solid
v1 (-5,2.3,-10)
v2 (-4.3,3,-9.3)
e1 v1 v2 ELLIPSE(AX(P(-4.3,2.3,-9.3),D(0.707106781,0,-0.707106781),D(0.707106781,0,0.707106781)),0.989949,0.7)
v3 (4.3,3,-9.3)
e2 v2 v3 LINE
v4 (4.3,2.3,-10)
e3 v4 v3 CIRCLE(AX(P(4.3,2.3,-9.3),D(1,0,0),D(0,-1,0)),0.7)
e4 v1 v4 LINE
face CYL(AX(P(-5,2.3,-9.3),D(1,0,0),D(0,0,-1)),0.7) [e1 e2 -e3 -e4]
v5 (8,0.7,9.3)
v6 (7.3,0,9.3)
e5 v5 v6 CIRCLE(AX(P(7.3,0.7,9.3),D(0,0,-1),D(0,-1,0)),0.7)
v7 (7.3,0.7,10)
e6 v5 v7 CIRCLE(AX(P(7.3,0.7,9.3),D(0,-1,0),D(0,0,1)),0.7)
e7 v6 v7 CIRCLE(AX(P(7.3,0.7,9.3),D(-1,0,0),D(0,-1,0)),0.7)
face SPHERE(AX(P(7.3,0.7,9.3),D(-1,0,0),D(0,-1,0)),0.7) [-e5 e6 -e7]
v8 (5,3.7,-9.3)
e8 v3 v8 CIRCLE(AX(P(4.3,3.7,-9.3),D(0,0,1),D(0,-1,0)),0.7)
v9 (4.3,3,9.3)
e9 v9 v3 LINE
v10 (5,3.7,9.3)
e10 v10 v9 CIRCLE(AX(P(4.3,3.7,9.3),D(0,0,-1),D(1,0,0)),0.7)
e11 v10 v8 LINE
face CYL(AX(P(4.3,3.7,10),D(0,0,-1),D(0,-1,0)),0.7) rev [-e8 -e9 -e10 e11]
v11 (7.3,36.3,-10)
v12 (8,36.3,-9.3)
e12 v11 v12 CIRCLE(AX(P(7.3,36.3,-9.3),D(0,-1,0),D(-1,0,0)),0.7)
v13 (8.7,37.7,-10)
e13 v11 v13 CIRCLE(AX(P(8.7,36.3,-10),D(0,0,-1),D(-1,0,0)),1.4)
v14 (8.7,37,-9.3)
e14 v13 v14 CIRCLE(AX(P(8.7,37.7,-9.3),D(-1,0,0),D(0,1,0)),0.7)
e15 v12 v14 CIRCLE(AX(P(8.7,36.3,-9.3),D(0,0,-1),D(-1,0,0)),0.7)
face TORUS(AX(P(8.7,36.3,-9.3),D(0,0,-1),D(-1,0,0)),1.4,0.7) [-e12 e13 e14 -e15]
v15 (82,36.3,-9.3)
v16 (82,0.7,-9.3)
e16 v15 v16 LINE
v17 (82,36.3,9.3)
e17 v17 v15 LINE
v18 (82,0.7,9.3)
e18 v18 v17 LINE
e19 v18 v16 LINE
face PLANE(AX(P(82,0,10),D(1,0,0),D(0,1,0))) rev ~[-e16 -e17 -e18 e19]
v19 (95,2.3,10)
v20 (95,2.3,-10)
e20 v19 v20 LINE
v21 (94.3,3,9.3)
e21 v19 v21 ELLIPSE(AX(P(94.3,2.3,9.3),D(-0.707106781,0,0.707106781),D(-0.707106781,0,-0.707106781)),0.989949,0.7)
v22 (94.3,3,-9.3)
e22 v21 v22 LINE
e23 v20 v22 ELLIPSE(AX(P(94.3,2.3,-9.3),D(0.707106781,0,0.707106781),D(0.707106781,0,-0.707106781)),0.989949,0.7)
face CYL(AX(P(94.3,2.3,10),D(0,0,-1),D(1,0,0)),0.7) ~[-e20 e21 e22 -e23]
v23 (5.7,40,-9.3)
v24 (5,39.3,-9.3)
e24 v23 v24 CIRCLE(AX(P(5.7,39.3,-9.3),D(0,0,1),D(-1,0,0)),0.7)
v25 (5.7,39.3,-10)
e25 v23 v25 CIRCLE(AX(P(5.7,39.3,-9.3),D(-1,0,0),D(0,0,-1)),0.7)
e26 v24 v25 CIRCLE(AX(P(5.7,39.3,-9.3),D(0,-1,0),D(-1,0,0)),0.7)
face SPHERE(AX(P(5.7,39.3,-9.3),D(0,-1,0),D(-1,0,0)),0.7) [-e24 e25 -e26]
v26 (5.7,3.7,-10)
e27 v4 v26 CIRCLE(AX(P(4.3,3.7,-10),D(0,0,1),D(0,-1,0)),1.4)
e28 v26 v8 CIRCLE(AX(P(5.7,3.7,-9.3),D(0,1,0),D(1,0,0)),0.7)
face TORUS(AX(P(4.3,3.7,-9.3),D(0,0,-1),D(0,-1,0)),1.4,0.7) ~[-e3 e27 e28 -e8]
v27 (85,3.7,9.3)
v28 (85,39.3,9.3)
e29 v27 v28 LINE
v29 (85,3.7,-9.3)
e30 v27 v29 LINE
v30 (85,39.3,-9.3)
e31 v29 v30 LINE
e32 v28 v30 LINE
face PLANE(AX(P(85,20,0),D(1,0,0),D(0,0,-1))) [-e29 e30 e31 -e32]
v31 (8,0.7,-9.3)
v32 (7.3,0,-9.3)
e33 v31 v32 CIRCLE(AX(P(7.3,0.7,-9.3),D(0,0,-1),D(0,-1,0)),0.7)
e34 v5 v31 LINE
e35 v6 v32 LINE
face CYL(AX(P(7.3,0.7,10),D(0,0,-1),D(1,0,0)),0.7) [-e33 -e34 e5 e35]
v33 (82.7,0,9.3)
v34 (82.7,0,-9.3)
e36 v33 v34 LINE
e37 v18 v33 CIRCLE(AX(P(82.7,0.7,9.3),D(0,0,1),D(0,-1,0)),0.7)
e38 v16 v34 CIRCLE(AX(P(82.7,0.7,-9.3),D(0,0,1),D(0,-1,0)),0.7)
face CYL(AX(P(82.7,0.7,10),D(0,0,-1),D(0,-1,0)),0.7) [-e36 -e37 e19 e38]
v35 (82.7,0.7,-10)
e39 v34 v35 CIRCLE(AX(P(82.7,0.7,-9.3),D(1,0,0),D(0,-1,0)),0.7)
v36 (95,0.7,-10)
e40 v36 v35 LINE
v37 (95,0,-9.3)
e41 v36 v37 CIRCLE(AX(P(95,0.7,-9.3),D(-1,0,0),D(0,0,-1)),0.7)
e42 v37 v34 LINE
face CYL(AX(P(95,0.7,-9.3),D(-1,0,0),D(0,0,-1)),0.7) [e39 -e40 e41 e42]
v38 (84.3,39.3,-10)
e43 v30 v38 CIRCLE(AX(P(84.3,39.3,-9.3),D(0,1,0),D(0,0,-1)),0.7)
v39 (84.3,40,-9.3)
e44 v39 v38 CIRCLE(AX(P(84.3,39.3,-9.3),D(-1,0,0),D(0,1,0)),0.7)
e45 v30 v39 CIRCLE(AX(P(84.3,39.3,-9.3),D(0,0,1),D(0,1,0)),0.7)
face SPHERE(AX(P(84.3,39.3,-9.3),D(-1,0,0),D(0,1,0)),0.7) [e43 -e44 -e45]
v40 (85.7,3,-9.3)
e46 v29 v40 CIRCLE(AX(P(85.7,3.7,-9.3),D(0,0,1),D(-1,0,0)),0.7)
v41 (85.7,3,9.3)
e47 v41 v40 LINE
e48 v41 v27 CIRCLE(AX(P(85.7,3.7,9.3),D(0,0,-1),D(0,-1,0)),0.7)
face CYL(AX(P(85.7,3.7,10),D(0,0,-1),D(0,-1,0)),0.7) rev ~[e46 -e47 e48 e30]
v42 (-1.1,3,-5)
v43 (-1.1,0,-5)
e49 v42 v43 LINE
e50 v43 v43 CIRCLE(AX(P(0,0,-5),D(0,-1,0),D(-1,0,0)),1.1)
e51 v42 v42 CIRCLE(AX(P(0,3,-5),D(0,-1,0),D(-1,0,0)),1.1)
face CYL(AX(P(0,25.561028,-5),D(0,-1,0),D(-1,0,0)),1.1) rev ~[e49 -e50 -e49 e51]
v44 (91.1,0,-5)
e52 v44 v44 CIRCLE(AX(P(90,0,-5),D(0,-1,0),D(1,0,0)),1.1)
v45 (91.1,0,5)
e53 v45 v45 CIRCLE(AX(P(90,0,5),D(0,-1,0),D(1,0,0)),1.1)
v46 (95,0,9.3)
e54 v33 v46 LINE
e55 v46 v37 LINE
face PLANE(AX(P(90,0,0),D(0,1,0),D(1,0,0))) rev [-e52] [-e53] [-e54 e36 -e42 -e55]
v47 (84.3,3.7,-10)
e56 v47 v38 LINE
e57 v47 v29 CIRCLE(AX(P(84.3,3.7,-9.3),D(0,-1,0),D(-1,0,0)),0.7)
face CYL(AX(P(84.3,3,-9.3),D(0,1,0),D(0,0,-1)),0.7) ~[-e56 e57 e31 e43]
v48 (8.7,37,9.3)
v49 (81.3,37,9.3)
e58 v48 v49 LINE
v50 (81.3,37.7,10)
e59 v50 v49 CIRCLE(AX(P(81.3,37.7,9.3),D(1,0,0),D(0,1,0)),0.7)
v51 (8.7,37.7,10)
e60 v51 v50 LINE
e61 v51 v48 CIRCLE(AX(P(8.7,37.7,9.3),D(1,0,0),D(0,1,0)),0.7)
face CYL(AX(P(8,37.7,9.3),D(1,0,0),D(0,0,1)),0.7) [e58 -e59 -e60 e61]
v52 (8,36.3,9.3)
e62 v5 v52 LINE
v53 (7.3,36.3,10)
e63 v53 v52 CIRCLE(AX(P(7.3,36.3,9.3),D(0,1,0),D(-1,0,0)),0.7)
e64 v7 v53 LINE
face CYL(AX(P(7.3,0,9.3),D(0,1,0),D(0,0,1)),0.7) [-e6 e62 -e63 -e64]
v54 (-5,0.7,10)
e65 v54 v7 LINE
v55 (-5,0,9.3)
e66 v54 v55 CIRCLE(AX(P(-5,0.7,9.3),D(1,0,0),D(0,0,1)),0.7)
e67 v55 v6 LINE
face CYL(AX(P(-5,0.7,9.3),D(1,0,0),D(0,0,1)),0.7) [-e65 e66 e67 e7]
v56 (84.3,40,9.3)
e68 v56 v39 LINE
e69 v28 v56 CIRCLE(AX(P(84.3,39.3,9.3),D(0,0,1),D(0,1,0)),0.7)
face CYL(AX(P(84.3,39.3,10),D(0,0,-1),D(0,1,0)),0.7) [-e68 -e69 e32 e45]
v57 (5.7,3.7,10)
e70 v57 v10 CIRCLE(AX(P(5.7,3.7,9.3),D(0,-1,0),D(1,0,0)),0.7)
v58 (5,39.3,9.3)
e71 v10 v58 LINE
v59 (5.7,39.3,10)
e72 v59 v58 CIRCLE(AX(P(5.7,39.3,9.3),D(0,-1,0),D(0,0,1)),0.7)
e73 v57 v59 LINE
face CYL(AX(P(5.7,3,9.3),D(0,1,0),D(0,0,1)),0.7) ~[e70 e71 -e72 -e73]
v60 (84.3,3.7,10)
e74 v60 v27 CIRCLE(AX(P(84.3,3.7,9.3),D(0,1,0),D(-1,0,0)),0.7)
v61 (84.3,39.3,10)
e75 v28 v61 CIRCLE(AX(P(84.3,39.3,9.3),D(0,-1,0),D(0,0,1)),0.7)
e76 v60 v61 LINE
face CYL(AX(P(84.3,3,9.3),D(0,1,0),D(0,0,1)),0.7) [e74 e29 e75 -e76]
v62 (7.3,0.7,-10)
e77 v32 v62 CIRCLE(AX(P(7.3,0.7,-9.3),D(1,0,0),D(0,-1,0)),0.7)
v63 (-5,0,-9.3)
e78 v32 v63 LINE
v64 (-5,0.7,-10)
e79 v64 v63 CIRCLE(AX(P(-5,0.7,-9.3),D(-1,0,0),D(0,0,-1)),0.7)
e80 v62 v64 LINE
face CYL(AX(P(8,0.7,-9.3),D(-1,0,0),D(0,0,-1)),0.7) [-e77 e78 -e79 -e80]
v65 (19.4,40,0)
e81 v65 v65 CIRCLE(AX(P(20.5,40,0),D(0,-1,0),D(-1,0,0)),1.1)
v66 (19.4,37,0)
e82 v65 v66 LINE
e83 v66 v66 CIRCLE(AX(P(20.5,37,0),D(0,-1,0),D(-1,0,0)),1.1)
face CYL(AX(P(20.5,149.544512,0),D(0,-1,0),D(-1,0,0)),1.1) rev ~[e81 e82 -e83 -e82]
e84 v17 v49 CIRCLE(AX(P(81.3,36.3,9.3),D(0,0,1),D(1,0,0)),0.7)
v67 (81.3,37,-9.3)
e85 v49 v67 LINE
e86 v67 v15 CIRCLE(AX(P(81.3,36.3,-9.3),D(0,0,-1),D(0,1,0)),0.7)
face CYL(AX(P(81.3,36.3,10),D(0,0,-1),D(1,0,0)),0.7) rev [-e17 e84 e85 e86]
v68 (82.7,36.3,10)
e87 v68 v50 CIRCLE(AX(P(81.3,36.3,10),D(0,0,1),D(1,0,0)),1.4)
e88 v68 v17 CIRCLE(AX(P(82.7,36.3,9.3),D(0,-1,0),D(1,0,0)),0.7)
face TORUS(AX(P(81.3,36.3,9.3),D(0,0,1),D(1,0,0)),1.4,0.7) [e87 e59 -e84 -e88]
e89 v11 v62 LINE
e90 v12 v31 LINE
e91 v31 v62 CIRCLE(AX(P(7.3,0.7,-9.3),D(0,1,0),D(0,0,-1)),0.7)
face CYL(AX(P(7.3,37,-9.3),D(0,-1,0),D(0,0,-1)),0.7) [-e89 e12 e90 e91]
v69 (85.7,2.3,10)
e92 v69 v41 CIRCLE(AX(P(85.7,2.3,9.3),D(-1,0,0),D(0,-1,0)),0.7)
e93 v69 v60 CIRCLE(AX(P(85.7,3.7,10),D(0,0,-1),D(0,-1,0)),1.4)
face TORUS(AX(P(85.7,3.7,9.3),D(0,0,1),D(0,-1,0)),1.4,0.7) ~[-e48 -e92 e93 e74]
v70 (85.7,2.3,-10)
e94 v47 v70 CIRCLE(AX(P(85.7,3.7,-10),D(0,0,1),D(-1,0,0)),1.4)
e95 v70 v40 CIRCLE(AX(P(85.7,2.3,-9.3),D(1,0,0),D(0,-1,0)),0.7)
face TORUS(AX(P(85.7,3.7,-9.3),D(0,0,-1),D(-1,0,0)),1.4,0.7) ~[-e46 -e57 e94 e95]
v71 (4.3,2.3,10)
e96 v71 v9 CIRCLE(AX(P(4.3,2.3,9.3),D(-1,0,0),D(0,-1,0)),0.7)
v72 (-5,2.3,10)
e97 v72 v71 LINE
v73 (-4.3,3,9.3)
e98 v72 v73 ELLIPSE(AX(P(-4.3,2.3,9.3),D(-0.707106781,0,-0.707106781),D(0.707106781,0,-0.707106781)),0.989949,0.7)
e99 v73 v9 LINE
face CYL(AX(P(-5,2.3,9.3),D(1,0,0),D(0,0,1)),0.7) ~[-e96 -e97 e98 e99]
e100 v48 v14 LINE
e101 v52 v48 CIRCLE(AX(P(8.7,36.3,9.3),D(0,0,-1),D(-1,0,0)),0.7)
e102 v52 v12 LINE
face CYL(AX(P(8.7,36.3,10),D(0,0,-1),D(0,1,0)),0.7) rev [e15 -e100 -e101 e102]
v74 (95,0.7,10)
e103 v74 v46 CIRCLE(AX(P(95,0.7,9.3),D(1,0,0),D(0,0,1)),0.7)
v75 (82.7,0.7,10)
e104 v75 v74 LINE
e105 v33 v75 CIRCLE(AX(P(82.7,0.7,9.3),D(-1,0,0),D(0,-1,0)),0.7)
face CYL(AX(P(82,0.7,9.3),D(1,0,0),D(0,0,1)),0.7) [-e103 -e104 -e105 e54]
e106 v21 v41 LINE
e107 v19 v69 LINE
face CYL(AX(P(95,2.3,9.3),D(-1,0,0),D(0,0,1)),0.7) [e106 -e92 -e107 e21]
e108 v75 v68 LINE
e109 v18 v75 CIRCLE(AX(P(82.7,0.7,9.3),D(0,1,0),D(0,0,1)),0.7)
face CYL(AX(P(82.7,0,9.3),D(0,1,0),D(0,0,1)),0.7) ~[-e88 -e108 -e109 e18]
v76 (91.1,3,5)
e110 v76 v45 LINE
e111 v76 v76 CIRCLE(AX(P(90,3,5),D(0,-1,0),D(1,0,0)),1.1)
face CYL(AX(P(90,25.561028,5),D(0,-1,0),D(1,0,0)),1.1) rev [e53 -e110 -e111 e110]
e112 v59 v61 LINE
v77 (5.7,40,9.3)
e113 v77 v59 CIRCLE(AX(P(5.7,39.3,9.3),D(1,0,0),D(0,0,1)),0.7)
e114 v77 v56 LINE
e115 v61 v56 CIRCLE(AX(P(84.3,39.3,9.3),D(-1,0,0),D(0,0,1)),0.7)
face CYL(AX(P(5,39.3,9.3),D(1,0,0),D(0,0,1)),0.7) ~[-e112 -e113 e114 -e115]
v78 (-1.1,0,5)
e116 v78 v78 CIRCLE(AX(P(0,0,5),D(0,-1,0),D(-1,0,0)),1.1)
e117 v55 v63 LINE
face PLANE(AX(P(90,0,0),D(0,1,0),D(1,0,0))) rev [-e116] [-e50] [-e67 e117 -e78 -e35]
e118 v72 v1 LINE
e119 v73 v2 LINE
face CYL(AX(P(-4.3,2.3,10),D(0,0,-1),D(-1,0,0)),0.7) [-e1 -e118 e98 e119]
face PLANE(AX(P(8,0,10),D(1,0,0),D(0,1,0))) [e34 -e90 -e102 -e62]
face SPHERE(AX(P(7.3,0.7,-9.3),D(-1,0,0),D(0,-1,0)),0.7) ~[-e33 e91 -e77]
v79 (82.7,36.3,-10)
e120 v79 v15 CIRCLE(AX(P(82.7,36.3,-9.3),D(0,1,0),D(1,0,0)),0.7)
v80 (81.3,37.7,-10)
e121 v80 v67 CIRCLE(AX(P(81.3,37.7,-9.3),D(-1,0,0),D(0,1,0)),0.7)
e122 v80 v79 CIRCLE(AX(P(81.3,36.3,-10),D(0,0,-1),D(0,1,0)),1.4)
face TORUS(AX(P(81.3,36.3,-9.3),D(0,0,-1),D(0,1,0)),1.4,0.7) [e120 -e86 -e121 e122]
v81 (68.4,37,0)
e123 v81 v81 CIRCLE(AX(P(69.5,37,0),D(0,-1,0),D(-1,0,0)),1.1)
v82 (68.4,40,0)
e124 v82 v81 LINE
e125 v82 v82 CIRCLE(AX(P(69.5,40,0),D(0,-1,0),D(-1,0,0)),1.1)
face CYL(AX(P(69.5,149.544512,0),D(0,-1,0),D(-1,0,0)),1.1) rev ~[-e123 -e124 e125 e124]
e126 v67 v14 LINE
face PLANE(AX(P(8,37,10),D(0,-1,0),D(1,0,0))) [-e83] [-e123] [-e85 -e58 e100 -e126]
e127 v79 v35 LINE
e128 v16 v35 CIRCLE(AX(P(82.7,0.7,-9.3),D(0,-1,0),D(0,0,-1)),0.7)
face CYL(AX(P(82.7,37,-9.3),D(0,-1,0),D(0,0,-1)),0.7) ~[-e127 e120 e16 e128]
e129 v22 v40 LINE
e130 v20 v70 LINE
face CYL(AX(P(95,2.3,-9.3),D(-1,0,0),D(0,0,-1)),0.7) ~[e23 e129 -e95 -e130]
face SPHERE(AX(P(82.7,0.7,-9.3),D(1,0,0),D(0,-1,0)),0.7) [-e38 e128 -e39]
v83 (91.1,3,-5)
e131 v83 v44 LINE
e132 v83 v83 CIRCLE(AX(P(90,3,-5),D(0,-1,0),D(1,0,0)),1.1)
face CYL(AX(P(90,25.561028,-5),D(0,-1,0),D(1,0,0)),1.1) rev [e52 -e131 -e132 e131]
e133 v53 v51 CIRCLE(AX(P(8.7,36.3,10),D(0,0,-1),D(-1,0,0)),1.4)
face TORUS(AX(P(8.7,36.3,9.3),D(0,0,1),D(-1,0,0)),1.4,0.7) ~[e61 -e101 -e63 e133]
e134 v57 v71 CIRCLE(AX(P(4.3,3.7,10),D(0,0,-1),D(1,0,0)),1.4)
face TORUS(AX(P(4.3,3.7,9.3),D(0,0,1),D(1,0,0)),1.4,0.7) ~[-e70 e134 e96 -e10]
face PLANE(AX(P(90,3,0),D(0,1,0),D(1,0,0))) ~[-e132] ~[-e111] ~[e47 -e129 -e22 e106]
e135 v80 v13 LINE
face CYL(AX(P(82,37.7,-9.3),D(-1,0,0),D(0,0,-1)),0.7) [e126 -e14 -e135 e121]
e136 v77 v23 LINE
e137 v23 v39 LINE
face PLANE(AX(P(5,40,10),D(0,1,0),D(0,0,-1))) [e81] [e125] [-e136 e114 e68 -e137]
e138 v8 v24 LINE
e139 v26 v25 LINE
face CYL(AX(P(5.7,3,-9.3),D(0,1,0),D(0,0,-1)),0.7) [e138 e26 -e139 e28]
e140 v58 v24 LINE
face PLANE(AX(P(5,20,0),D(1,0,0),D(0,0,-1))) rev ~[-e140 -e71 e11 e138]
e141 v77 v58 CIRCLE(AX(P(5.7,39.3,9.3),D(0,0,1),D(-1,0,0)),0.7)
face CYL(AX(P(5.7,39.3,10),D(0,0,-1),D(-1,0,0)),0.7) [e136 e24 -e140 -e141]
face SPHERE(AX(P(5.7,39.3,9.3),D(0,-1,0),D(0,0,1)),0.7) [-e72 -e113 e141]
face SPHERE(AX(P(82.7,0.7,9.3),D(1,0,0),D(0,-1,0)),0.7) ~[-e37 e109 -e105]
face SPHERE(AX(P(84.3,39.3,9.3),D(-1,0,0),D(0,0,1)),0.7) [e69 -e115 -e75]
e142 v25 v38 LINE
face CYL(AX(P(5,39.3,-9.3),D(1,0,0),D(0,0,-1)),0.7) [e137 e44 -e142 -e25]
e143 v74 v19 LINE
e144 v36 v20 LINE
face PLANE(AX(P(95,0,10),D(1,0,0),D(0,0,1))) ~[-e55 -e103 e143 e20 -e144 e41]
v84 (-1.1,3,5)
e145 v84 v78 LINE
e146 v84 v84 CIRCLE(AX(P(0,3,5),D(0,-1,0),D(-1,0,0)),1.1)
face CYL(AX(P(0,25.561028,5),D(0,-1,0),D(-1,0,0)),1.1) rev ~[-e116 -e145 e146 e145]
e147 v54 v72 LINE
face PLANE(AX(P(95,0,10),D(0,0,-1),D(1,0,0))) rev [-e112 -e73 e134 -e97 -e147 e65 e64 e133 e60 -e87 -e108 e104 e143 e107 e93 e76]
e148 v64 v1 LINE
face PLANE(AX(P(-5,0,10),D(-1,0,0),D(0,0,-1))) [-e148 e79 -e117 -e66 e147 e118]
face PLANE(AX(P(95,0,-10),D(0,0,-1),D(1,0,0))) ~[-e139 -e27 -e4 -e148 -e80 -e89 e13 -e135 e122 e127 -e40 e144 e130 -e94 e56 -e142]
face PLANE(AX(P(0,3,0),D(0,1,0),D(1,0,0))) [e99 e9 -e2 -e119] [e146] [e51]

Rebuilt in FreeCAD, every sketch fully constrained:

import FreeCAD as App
import Part
import Sketcher

V = App.Vector


def edges_at(feature, points):
    """Names of the edges that pass closest to the given points."""
    edges = feature.Shape.Edges
    near = lambda p: min(range(len(edges)), key=lambda i: edges[i].distToShape(Part.Vertex(*p))[0])
    return sorted({f"Edge{near(p) + 1}" for p in points})

doc = App.newDocument("Part")
body = doc.addObject("PartDesign::Body", "Body")

# Sketch on XZ plane
sketch1 = doc.addObject("Sketcher::SketchObject", "Sketch")
body.addObject(sketch1)
sketch1.AttachmentSupport = (doc.XZ_Plane, [""])
sketch1.MapMode = "FlatFace"
sketch1.addGeometry(Part.LineSegment(V(-5, -10, 0), V(-5, 10, 0)), False)
sketch1.addGeometry(Part.LineSegment(V(-5, 10, 0), V(5, 10, 0)), False)
sketch1.addGeometry(Part.LineSegment(V(5, 10, 0), V(5, -10, 0)), False)
sketch1.addGeometry(Part.LineSegment(V(5, -10, 0), V(-5, -10, 0)), False)
sketch1.addConstraint(Sketcher.Constraint("Coincident", 0, 2, 1, 1))
sketch1.addConstraint(Sketcher.Constraint("Coincident", 1, 2, 2, 1))
sketch1.addConstraint(Sketcher.Constraint("Coincident", 2, 2, 3, 1))
sketch1.addConstraint(Sketcher.Constraint("Coincident", 3, 2, 0, 1))
sketch1.addConstraint(Sketcher.Constraint("Vertical", 0))
sketch1.addConstraint(Sketcher.Constraint("Horizontal", 1))
sketch1.addConstraint(Sketcher.Constraint("Vertical", 2))
sketch1.addConstraint(Sketcher.Constraint("Horizontal", 3))
sketch1.addConstraint(Sketcher.Constraint("Symmetric", 0, 2, 2, 2, -1, 1))
sketch1.addConstraint(Sketcher.Constraint("DistanceX", 1, 1, 1, 2, 10.0))
sketch1.addConstraint(Sketcher.Constraint("DistanceY", 0, 1, 0, 2, 20.0))
pad1 = doc.addObject("PartDesign::Pad", "Pad")
body.addObject(pad1)
pad1.Profile = sketch1
pad1.Length = 3
pad1.Reversed = True

# Sketch on XZ plane
sketch2 = doc.addObject("Sketcher::SketchObject", "Sketch001")
body.addObject(sketch2)
sketch2.AttachmentSupport = (doc.XZ_Plane, [""])
sketch2.MapMode = "FlatFace"
sketch2.AttachmentOffset = App.Placement(V(0, 0, -3), App.Rotation())
sketch2.addGeometry(Part.Circle(V(0, -5, 0), V(0, 0, 1), 1.1), False)
sketch2.addGeometry(Part.Circle(V(0, 5, 0), V(0, 0, 1), 1.1), False)
sketch2.addConstraint(Sketcher.Constraint("Equal", 0, 1))
sketch2.addConstraint(Sketcher.Constraint("Symmetric", 0, 3, 1, 3, -1, 1))
sketch2.addConstraint(Sketcher.Constraint("PointOnObject", 0, 3, -2))
sketch2.addConstraint(Sketcher.Constraint("Diameter", 0, 2.2))
sketch2.addConstraint(Sketcher.Constraint("DistanceY", 0, 3, -1, 1, 5.0))
doc.recompute()
hole = doc.addObject("PartDesign::Hole", "Hole")
body.addObject(hole)
hole.Profile = sketch2
hole.ThreadType = "None"
hole.Diameter = 2.2
hole.DepthType = "ThroughAll"
hole.Reversed = True

# Sketch on YZ plane
sketch3 = doc.addObject("Sketcher::SketchObject", "Sketch002")
body.addObject(sketch3)
sketch3.AttachmentSupport = (doc.YZ_Plane, [""])
sketch3.MapMode = "FlatFace"
sketch3.AttachmentOffset = App.Placement(V(0, 0, 5), App.Rotation())
sketch3.addGeometry(Part.LineSegment(V(40, 10, 0), V(0, 10, 0)), False)
sketch3.addGeometry(Part.LineSegment(V(0, 10, 0), V(0, -10, 0)), False)
sketch3.addGeometry(Part.LineSegment(V(0, -10, 0), V(40, -10, 0)), False)
sketch3.addGeometry(Part.LineSegment(V(40, -10, 0), V(40, 10, 0)), False)
sketch3.addConstraint(Sketcher.Constraint("Coincident", 0, 2, 1, 1))
sketch3.addConstraint(Sketcher.Constraint("Coincident", 1, 2, 2, 1))
sketch3.addConstraint(Sketcher.Constraint("Coincident", 2, 2, 3, 1))
sketch3.addConstraint(Sketcher.Constraint("Coincident", 3, 2, 0, 1))
sketch3.addConstraint(Sketcher.Constraint("Horizontal", 0))
sketch3.addConstraint(Sketcher.Constraint("Vertical", 1))
sketch3.addConstraint(Sketcher.Constraint("Horizontal", 2))
sketch3.addConstraint(Sketcher.Constraint("Vertical", 3))
sketch3.addConstraint(Sketcher.Constraint("Symmetric", 0, 2, 1, 2, -1, 1))
sketch3.addConstraint(Sketcher.Constraint("DistanceX", 0, 2, 0, 1, 40.0))
sketch3.addConstraint(Sketcher.Constraint("DistanceY", 1, 2, 1, 1, 20.0))
pad2 = doc.addObject("PartDesign::Pad", "Pad001")
body.addObject(pad2)
pad2.Profile = sketch3
pad2.Length = 80
doc.recompute()

datumplane = doc.addObject("PartDesign::Plane", "DatumPlane")
body.addObject(datumplane)
datumplane.AttachmentSupport = (doc.YZ_Plane, [""])
datumplane.MapMode = "FlatFace"
datumplane.AttachmentOffset = App.Placement(V(0, 0, 45), App.Rotation())
mirrored = doc.addObject("PartDesign::Mirrored", "Mirrored")
body.addObject(mirrored)
mirrored.Originals = [pad1, hole]
mirrored.MirrorPlane = (datumplane, [""])
body.Tip = mirrored

# Sketch on XY plane
sketch4 = doc.addObject("Sketcher::SketchObject", "Sketch003")
body.addObject(sketch4)
sketch4.AttachmentSupport = (doc.XY_Plane, [""])
sketch4.MapMode = "FlatFace"
sketch4.AttachmentOffset = App.Placement(V(0, 0, 10), App.Rotation())
sketch4.addGeometry(Part.LineSegment(V(8, 37, 0), V(8, 0, 0)), False)
sketch4.addGeometry(Part.LineSegment(V(8, 0, 0), V(82, 0, 0)), False)
sketch4.addGeometry(Part.LineSegment(V(82, 0, 0), V(82, 37, 0)), False)
sketch4.addGeometry(Part.LineSegment(V(82, 37, 0), V(8, 37, 0)), False)
sketch4.addConstraint(Sketcher.Constraint("Coincident", 0, 2, 1, 1))
sketch4.addConstraint(Sketcher.Constraint("Coincident", 1, 2, 2, 1))
sketch4.addConstraint(Sketcher.Constraint("Coincident", 2, 2, 3, 1))
sketch4.addConstraint(Sketcher.Constraint("Coincident", 3, 2, 0, 1))
sketch4.addConstraint(Sketcher.Constraint("Vertical", 0))
sketch4.addConstraint(Sketcher.Constraint("Horizontal", 1))
sketch4.addConstraint(Sketcher.Constraint("Vertical", 2))
sketch4.addConstraint(Sketcher.Constraint("Horizontal", 3))
sketch4.addConstraint(Sketcher.Constraint("PointOnObject", 0, 2, -1))
sketch4.addConstraint(Sketcher.Constraint("DistanceX", 1, 1, 1, 2, 74.0))
sketch4.addConstraint(Sketcher.Constraint("DistanceY", 0, 2, 0, 1, 37.0))
sketch4.addConstraint(Sketcher.Constraint("DistanceX", -1, 1, 0, 2, 8.0))
pocket1 = doc.addObject("PartDesign::Pocket", "Pocket")
body.addObject(pocket1)
pocket1.Profile = sketch4
pocket1.Type = "UpToFirst"

# Sketch on XZ plane
sketch5 = doc.addObject("Sketcher::SketchObject", "Sketch004")
body.addObject(sketch5)
sketch5.AttachmentSupport = (doc.XZ_Plane, [""])
sketch5.MapMode = "FlatFace"
sketch5.AttachmentOffset = App.Placement(V(0, 0, -40), App.Rotation())
sketch5.addGeometry(Part.Circle(V(20.5, 0, 0), V(0, 0, 1), 1.1), False)
sketch5.addGeometry(Part.Circle(V(69.5, 0, 0), V(0, 0, 1), 1.1), False)
sketch5.addConstraint(Sketcher.Constraint("Equal", 0, 1))
sketch5.addConstraint(Sketcher.Constraint("PointOnObject", 0, 3, -1))
sketch5.addConstraint(Sketcher.Constraint("PointOnObject", 1, 3, -1))
sketch5.addConstraint(Sketcher.Constraint("Diameter", 0, 2.2))
sketch5.addConstraint(Sketcher.Constraint("DistanceX", 0, 3, 1, 3, 49.0))
sketch5.addConstraint(Sketcher.Constraint("DistanceX", -1, 1, 0, 3, 20.5))
doc.recompute()
hole2 = doc.addObject("PartDesign::Hole", "Hole001")
body.addObject(hole2)
hole2.Profile = sketch5
hole2.ThreadType = "None"
hole2.Diameter = 2.2
hole2.DepthType = "ThroughAll"
hole2.Reversed = True
doc.recompute()

fillet = doc.addObject("PartDesign::Fillet", "Fillet")
body.addObject(fillet)
fillet.Base = (hole2, edges_at(hole2, [
    (5, 3, 0),
    (0, 3, -10),
    (5, 21.5, 10),
    (45, 40, 10),
    (5, 21.5, -10),
    (5, 40, 0),
    (45, 40, -10),
    (85, 21.5, 10),
    (85, 40, 0),
    (85, 21.5, -10),
    (95, 3, 0),
    (90, 3, -10),
    (85, 3, 0),
    (90, 3, 10),
    (-5, 3, 0),
    (88.5, 0, -10),
    (1.5, 0, 10),
    (1.5, 0, -10),
    (88.5, 0, 10),
    (8, 0, 0),
    (8, 37, 0),
    (82, 37, 0),
    (82, 0, 0),
    (8, 18.5, 10),
    (82, 18.5, 10),
    (45, 37, 10),
    (8, 18.5, -10),
    (45, 37, -10),
    (82, 18.5, -10),
    (0, 3, 10),
]))
fillet.Radius = 0.7

doc.recompute()
